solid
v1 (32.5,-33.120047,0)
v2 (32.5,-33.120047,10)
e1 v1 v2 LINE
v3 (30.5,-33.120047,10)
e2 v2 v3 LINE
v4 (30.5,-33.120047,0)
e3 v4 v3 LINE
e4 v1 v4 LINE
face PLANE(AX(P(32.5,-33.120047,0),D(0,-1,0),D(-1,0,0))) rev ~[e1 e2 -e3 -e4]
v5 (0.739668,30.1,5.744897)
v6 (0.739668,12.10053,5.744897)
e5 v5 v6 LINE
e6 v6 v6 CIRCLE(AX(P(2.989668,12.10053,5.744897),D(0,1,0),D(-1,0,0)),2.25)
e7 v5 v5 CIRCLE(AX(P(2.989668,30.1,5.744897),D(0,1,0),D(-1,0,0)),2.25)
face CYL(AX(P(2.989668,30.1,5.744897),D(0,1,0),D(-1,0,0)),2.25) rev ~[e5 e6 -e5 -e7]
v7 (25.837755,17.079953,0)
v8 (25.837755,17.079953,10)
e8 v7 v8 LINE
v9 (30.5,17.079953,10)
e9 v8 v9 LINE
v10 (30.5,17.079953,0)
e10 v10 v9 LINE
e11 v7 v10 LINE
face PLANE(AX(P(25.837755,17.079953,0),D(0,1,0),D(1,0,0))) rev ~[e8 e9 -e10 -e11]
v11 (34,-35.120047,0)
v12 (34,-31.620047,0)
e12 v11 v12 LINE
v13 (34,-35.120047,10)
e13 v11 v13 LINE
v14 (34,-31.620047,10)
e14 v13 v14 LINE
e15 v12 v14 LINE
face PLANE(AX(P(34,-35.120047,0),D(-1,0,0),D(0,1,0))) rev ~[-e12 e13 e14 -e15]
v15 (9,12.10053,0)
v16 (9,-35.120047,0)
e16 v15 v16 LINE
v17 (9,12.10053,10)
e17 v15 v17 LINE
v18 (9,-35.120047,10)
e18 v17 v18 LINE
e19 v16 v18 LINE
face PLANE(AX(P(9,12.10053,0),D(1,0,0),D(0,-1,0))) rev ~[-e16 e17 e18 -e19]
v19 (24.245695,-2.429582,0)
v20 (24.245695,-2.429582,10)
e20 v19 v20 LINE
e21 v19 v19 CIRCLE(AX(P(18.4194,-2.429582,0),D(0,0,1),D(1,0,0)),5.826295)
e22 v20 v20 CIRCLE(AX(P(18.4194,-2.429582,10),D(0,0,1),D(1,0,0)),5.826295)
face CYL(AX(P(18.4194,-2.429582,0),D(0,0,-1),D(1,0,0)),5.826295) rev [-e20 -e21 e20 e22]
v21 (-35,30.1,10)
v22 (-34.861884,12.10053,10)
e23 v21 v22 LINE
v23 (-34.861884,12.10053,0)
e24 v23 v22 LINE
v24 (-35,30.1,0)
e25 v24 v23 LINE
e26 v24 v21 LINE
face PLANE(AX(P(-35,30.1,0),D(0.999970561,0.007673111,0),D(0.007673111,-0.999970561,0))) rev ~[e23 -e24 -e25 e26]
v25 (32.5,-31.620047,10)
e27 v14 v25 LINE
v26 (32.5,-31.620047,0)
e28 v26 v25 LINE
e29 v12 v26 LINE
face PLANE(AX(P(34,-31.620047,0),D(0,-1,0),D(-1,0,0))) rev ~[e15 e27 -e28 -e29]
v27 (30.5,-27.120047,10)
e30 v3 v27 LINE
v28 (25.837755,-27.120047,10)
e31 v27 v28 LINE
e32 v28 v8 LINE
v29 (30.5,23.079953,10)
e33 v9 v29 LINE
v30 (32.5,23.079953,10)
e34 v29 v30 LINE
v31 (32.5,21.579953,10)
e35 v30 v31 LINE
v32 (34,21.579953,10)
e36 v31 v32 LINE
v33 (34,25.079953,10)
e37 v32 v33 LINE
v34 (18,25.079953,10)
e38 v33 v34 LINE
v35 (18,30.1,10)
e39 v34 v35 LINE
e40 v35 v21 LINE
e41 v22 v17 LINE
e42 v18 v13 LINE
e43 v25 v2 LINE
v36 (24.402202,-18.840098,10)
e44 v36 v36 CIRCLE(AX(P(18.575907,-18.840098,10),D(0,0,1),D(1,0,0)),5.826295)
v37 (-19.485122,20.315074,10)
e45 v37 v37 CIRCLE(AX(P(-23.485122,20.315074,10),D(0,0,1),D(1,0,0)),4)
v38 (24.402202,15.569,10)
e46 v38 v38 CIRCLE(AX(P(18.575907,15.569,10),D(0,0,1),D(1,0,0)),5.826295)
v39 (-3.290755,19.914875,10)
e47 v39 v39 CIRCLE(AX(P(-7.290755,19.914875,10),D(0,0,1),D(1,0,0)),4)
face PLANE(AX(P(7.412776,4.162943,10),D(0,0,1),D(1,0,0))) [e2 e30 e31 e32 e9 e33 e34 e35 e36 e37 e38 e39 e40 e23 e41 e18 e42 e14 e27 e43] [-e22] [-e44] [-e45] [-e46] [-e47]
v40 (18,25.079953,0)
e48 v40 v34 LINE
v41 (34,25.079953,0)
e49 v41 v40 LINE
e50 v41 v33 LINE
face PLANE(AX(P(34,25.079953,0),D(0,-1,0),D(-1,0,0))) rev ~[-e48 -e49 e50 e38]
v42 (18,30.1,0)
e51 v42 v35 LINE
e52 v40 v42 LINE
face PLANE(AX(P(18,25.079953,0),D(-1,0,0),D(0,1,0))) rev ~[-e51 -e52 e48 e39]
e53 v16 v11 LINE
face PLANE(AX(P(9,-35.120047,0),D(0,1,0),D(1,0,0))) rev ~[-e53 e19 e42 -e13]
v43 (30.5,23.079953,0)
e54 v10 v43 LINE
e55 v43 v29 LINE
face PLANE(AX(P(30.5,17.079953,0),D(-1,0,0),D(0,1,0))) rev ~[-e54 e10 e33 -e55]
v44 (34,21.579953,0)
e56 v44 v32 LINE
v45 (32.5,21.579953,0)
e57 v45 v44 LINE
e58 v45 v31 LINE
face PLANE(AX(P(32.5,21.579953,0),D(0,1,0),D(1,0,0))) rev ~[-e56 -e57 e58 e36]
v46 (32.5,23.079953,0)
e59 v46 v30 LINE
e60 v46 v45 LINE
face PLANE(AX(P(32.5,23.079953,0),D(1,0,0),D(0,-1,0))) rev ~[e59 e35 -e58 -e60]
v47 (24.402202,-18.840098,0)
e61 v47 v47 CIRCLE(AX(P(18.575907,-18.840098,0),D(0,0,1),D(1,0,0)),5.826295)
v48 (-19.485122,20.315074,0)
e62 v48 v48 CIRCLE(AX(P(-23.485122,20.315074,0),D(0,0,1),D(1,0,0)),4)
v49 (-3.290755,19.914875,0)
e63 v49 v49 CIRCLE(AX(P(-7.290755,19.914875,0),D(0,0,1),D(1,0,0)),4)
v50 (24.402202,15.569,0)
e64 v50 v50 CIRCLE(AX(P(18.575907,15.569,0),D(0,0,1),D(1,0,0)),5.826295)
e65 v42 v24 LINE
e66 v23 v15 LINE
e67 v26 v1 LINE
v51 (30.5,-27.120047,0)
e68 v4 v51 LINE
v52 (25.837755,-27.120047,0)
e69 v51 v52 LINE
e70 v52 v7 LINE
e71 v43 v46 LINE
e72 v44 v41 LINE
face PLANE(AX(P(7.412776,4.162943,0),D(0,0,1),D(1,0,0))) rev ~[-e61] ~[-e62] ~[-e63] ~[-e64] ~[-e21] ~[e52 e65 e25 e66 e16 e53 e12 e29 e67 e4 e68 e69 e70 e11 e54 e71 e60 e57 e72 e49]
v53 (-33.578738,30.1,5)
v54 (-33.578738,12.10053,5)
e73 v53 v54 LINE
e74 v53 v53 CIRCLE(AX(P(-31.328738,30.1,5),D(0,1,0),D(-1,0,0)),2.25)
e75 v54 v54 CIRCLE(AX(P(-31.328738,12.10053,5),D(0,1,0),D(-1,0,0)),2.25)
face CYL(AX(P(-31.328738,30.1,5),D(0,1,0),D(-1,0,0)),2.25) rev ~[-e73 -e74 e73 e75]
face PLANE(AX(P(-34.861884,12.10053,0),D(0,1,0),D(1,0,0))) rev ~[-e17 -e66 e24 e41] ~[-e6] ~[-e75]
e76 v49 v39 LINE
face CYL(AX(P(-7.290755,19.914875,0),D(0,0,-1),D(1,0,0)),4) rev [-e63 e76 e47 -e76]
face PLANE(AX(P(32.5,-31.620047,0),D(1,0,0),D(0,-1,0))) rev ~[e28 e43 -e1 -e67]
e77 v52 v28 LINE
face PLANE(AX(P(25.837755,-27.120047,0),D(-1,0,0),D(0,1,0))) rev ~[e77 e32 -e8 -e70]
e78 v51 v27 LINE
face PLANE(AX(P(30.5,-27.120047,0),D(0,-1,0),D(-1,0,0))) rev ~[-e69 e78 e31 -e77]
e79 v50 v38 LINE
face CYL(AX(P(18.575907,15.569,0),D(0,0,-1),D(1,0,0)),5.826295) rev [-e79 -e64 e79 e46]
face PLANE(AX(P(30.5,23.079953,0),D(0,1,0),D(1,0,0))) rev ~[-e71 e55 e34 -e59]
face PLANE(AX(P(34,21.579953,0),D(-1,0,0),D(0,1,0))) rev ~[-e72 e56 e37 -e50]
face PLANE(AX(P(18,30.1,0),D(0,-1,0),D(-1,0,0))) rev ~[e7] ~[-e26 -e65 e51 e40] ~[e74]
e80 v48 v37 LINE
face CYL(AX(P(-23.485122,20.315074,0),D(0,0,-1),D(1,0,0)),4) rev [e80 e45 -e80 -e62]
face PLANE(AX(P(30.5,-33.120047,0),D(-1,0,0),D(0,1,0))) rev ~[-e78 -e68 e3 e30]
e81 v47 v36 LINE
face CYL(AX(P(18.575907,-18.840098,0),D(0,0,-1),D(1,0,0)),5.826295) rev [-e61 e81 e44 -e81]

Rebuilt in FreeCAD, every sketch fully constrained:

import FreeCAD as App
import Part
import Sketcher

doc = App.newDocument("Part")
body = doc.addObject("PartDesign::Body", "Body")

# Sketch on XY plane
sketch1 = body.newObject("Sketcher::SketchObject", "Sketch")
sketch1.AttachmentSupport = (doc.getObject("XY_Plane"), [""])
sketch1.MapMode = "FlatFace"
sketch1.addGeometry([
    Part.LineSegment(App.Vector(9, -35.1, 0), App.Vector(34, -35.1, 0)),  # 0
    Part.LineSegment(App.Vector(34, -35.1, 0), App.Vector(34, -31.6, 0)),  # 1
    Part.LineSegment(App.Vector(34, -31.6, 0), App.Vector(32.5, -31.6, 0)),  # 2
    Part.LineSegment(App.Vector(32.5, -31.6, 0), App.Vector(32.5, -33.1, 0)),  # 3
    Part.LineSegment(App.Vector(32.5, -33.1, 0), App.Vector(30.5, -33.1, 0)),  # 4
    Part.LineSegment(App.Vector(30.5, -33.1, 0), App.Vector(30.5, -27.1, 0)),  # 5
    Part.LineSegment(App.Vector(30.5, -27.1, 0), App.Vector(25.8, -27.1, 0)),  # 6
    Part.LineSegment(App.Vector(25.8, -27.1, 0), App.Vector(25.8, 17.1, 0)),  # 7
    Part.LineSegment(App.Vector(25.8, 17.1, 0), App.Vector(30.5, 17.1, 0)),  # 8
    Part.LineSegment(App.Vector(30.5, 17.1, 0), App.Vector(30.5, 23.1, 0)),  # 9
    Part.LineSegment(App.Vector(30.5, 23.1, 0), App.Vector(32.5, 23.1, 0)),  # 10
    Part.LineSegment(App.Vector(32.5, 23.1, 0), App.Vector(32.5, 21.6, 0)),  # 11
    Part.LineSegment(App.Vector(32.5, 21.6, 0), App.Vector(34, 21.6, 0)),  # 12
    Part.LineSegment(App.Vector(34, 21.6, 0), App.Vector(34, 25.1, 0)),  # 13
    Part.LineSegment(App.Vector(34, 25.1, 0), App.Vector(18, 25.1, 0)),  # 14
    Part.LineSegment(App.Vector(18, 25.1, 0), App.Vector(18, 30.1, 0)),  # 15
    Part.LineSegment(App.Vector(18, 30.1, 0), App.Vector(-35, 30.1, 0)),  # 16
    Part.LineSegment(App.Vector(-35, 30.1, 0), App.Vector(-34.9, 12.1, 0)),  # 17
    Part.LineSegment(App.Vector(-34.9, 12.1, 0), App.Vector(9, 12.1, 0)),  # 18
    Part.LineSegment(App.Vector(9, 12.1, 0), App.Vector(9, -35.1, 0)),  # 19
    Part.Circle(App.Vector(18.6, -18.8, 0), App.Vector(0, 0, 1), 5.8),  # 20
    Part.Circle(App.Vector(18.4, -2.4, 0), App.Vector(0, 0, 1), 5.8),  # 21
    Part.Circle(App.Vector(-23.5, 20.3, 0), App.Vector(0, 0, 1), 4),  # 22
    Part.Circle(App.Vector(-7.3, 19.9, 0), App.Vector(0, 0, 1), 4),  # 23
    Part.Circle(App.Vector(18.6, 15.6, 0), App.Vector(0, 0, 1), 5.8),  # 24
], False)
sketch1.addConstraint([
    Sketcher.Constraint("Coincident", 0, 2, 1, 1),
    Sketcher.Constraint("Coincident", 1, 2, 2, 1),
    Sketcher.Constraint("Coincident", 2, 2, 3, 1),
    Sketcher.Constraint("Coincident", 3, 2, 4, 1),
    Sketcher.Constraint("Coincident", 4, 2, 5, 1),
    Sketcher.Constraint("Coincident", 5, 2, 6, 1),
    Sketcher.Constraint("Coincident", 6, 2, 7, 1),
    Sketcher.Constraint("Coincident", 7, 2, 8, 1),
    Sketcher.Constraint("Coincident", 8, 2, 9, 1),
    Sketcher.Constraint("Coincident", 9, 2, 10, 1),
    Sketcher.Constraint("Coincident", 10, 2, 11, 1),
    Sketcher.Constraint("Coincident", 11, 2, 12, 1),
    Sketcher.Constraint("Coincident", 12, 2, 13, 1),
    Sketcher.Constraint("Coincident", 13, 2, 14, 1),
    Sketcher.Constraint("Coincident", 14, 2, 15, 1),
    Sketcher.Constraint("Coincident", 15, 2, 16, 1),
    Sketcher.Constraint("Coincident", 16, 2, 17, 1),
    Sketcher.Constraint("Coincident", 17, 2, 18, 1),
    Sketcher.Constraint("Coincident", 18, 2, 19, 1),
    Sketcher.Constraint("Coincident", 19, 2, 0, 1),
    Sketcher.Constraint("Horizontal", 0),
    Sketcher.Constraint("Vertical", 1),
    Sketcher.Constraint("Horizontal", 2),
    Sketcher.Constraint("Vertical", 3),
    Sketcher.Constraint("Horizontal", 4),
    Sketcher.Constraint("Vertical", 5),
    Sketcher.Constraint("Horizontal", 6),
    Sketcher.Constraint("Vertical", 7),
    Sketcher.Constraint("Horizontal", 8),
    Sketcher.Constraint("Vertical", 9),
    Sketcher.Constraint("Horizontal", 10),
    Sketcher.Constraint("Vertical", 11),
    Sketcher.Constraint("Horizontal", 12),
    Sketcher.Constraint("Vertical", 13),
    Sketcher.Constraint("Horizontal", 14),
    Sketcher.Constraint("Vertical", 15),
    Sketcher.Constraint("Horizontal", 16),
    Sketcher.Constraint("Horizontal", 18),
    Sketcher.Constraint("Vertical", 19),
    Sketcher.Constraint("Equal", 20, 21),
    Sketcher.Constraint("Equal", 22, 23),
    Sketcher.Constraint("Equal", 21, 24),
    Sketcher.Constraint("Vertical", 20, 3, 24, 3),
    Sketcher.Constraint("Vertical", 5, 2, 8, 2),
    Sketcher.Constraint("Vertical", 3, 2, 10, 2),
    Sketcher.Constraint("Vertical", 1, 2, 12, 2),
    Sketcher.Constraint("Equal", 12, 3),
    Sketcher.Constraint("Equal", 5, 9),
    Sketcher.Constraint("Equal", 3, 11),
    Sketcher.Constraint("Equal", 1, 13),
    Sketcher.Constraint("Diameter", 22, 8.0),
    Sketcher.Constraint("DistanceX", 0, 1, 0, 2, 25.0),
    Sketcher.Constraint("DistanceX", 4, 2, 4, 1, 2.0),
    Sketcher.Constraint("DistanceX", 14, 2, 14, 1, 16.0),
    Sketcher.Constraint("DistanceX", 16, 2, 16, 1, 53.0),
    Sketcher.Constraint("DistanceY", 5, 1, 5, 2, 6.0),
    Sketcher.Constraint("Distance", 17, 18.0),
    Sketcher.Constraint("DistanceX", 2, 2, 2, 1, 1.5),
    Sketcher.Constraint("DistanceY", 1, 1, 1, 2, 3.5),
    Sketcher.Constraint("DistanceY", 7, 1, 7, 2, 44.2),
    Sketcher.Constraint("DistanceX", -1, 1, 0, 2, 34.0),
    Sketcher.Constraint("DistanceY", -1, 1, 15, 2, 30.1),
    Sketcher.Constraint("Diameter", 20, 11.65259),
    Sketcher.Constraint("DistanceY", -1, 1, 24, 3, 15.569),
    Sketcher.Constraint("DistanceY", 20, 3, -1, 1, 18.840098),
    Sketcher.Constraint("DistanceX", -1, 1, 21, 3, 18.4194),
    Sketcher.Constraint("DistanceY", 23, 3, 22, 3, 0.400199),
    Sketcher.Constraint("DistanceX", 6, 2, 6, 1, 4.662245),
    Sketcher.Constraint("DistanceX", 18, 1, 18, 2, 43.861884),
    Sketcher.Constraint("DistanceY", 15, 1, 15, 2, 5.020047),
    Sketcher.Constraint("DistanceY", 21, 3, -1, 1, 2.429582),
    Sketcher.Constraint("DistanceX", 22, 3, 20, 3, 42.061029),
    Sketcher.Constraint("DistanceY", 0, 2, 23, 3, 55.034922),
    Sketcher.Constraint("DistanceX", 24, 3, 7, 2, 7.261848),
    Sketcher.Constraint("DistanceX", 23, 3, 7, 2, 33.12851),
])
pad1 = body.newObject("PartDesign::Pad", "Pad")
pad1.Profile = sketch1
pad1.Length = 10

# Sketch on XZ plane
sketch2 = body.newObject("Sketcher::SketchObject", "Sketch001")
sketch2.AttachmentSupport = (doc.getObject("XZ_Plane"), [""])
sketch2.MapMode = "FlatFace"
sketch2.AttachmentOffset = App.Placement(App.Vector(0, 0, -30.1), App.Rotation())
sketch2.addGeometry([
    Part.Circle(App.Vector(3, 5.7, 0), App.Vector(0, 0, 1), 2.2),
    Part.Circle(App.Vector(-31.3, 5, 0), App.Vector(0, 0, 1), 2.2),
], False)
sketch2.addConstraint([
    Sketcher.Constraint("Equal", 0, 1),
    Sketcher.Constraint("Diameter", 0, 4.5),
    Sketcher.Constraint("DistanceY", -1, 1, 1, 3, 5.0),
    Sketcher.Constraint("DistanceX", -1, 1, 0, 3, 2.989668),
    Sketcher.Constraint("DistanceX", 1, 3, -1, 1, 31.328738),
    Sketcher.Constraint("DistanceY", -1, 1, 0, 3, 5.744897),
])
pocket1 = body.newObject("PartDesign::Pocket", "Pocket")
pocket1.Profile = sketch2
pocket1.Type = "ThroughAll"
pocket1.Reversed = True

doc.recompute()
